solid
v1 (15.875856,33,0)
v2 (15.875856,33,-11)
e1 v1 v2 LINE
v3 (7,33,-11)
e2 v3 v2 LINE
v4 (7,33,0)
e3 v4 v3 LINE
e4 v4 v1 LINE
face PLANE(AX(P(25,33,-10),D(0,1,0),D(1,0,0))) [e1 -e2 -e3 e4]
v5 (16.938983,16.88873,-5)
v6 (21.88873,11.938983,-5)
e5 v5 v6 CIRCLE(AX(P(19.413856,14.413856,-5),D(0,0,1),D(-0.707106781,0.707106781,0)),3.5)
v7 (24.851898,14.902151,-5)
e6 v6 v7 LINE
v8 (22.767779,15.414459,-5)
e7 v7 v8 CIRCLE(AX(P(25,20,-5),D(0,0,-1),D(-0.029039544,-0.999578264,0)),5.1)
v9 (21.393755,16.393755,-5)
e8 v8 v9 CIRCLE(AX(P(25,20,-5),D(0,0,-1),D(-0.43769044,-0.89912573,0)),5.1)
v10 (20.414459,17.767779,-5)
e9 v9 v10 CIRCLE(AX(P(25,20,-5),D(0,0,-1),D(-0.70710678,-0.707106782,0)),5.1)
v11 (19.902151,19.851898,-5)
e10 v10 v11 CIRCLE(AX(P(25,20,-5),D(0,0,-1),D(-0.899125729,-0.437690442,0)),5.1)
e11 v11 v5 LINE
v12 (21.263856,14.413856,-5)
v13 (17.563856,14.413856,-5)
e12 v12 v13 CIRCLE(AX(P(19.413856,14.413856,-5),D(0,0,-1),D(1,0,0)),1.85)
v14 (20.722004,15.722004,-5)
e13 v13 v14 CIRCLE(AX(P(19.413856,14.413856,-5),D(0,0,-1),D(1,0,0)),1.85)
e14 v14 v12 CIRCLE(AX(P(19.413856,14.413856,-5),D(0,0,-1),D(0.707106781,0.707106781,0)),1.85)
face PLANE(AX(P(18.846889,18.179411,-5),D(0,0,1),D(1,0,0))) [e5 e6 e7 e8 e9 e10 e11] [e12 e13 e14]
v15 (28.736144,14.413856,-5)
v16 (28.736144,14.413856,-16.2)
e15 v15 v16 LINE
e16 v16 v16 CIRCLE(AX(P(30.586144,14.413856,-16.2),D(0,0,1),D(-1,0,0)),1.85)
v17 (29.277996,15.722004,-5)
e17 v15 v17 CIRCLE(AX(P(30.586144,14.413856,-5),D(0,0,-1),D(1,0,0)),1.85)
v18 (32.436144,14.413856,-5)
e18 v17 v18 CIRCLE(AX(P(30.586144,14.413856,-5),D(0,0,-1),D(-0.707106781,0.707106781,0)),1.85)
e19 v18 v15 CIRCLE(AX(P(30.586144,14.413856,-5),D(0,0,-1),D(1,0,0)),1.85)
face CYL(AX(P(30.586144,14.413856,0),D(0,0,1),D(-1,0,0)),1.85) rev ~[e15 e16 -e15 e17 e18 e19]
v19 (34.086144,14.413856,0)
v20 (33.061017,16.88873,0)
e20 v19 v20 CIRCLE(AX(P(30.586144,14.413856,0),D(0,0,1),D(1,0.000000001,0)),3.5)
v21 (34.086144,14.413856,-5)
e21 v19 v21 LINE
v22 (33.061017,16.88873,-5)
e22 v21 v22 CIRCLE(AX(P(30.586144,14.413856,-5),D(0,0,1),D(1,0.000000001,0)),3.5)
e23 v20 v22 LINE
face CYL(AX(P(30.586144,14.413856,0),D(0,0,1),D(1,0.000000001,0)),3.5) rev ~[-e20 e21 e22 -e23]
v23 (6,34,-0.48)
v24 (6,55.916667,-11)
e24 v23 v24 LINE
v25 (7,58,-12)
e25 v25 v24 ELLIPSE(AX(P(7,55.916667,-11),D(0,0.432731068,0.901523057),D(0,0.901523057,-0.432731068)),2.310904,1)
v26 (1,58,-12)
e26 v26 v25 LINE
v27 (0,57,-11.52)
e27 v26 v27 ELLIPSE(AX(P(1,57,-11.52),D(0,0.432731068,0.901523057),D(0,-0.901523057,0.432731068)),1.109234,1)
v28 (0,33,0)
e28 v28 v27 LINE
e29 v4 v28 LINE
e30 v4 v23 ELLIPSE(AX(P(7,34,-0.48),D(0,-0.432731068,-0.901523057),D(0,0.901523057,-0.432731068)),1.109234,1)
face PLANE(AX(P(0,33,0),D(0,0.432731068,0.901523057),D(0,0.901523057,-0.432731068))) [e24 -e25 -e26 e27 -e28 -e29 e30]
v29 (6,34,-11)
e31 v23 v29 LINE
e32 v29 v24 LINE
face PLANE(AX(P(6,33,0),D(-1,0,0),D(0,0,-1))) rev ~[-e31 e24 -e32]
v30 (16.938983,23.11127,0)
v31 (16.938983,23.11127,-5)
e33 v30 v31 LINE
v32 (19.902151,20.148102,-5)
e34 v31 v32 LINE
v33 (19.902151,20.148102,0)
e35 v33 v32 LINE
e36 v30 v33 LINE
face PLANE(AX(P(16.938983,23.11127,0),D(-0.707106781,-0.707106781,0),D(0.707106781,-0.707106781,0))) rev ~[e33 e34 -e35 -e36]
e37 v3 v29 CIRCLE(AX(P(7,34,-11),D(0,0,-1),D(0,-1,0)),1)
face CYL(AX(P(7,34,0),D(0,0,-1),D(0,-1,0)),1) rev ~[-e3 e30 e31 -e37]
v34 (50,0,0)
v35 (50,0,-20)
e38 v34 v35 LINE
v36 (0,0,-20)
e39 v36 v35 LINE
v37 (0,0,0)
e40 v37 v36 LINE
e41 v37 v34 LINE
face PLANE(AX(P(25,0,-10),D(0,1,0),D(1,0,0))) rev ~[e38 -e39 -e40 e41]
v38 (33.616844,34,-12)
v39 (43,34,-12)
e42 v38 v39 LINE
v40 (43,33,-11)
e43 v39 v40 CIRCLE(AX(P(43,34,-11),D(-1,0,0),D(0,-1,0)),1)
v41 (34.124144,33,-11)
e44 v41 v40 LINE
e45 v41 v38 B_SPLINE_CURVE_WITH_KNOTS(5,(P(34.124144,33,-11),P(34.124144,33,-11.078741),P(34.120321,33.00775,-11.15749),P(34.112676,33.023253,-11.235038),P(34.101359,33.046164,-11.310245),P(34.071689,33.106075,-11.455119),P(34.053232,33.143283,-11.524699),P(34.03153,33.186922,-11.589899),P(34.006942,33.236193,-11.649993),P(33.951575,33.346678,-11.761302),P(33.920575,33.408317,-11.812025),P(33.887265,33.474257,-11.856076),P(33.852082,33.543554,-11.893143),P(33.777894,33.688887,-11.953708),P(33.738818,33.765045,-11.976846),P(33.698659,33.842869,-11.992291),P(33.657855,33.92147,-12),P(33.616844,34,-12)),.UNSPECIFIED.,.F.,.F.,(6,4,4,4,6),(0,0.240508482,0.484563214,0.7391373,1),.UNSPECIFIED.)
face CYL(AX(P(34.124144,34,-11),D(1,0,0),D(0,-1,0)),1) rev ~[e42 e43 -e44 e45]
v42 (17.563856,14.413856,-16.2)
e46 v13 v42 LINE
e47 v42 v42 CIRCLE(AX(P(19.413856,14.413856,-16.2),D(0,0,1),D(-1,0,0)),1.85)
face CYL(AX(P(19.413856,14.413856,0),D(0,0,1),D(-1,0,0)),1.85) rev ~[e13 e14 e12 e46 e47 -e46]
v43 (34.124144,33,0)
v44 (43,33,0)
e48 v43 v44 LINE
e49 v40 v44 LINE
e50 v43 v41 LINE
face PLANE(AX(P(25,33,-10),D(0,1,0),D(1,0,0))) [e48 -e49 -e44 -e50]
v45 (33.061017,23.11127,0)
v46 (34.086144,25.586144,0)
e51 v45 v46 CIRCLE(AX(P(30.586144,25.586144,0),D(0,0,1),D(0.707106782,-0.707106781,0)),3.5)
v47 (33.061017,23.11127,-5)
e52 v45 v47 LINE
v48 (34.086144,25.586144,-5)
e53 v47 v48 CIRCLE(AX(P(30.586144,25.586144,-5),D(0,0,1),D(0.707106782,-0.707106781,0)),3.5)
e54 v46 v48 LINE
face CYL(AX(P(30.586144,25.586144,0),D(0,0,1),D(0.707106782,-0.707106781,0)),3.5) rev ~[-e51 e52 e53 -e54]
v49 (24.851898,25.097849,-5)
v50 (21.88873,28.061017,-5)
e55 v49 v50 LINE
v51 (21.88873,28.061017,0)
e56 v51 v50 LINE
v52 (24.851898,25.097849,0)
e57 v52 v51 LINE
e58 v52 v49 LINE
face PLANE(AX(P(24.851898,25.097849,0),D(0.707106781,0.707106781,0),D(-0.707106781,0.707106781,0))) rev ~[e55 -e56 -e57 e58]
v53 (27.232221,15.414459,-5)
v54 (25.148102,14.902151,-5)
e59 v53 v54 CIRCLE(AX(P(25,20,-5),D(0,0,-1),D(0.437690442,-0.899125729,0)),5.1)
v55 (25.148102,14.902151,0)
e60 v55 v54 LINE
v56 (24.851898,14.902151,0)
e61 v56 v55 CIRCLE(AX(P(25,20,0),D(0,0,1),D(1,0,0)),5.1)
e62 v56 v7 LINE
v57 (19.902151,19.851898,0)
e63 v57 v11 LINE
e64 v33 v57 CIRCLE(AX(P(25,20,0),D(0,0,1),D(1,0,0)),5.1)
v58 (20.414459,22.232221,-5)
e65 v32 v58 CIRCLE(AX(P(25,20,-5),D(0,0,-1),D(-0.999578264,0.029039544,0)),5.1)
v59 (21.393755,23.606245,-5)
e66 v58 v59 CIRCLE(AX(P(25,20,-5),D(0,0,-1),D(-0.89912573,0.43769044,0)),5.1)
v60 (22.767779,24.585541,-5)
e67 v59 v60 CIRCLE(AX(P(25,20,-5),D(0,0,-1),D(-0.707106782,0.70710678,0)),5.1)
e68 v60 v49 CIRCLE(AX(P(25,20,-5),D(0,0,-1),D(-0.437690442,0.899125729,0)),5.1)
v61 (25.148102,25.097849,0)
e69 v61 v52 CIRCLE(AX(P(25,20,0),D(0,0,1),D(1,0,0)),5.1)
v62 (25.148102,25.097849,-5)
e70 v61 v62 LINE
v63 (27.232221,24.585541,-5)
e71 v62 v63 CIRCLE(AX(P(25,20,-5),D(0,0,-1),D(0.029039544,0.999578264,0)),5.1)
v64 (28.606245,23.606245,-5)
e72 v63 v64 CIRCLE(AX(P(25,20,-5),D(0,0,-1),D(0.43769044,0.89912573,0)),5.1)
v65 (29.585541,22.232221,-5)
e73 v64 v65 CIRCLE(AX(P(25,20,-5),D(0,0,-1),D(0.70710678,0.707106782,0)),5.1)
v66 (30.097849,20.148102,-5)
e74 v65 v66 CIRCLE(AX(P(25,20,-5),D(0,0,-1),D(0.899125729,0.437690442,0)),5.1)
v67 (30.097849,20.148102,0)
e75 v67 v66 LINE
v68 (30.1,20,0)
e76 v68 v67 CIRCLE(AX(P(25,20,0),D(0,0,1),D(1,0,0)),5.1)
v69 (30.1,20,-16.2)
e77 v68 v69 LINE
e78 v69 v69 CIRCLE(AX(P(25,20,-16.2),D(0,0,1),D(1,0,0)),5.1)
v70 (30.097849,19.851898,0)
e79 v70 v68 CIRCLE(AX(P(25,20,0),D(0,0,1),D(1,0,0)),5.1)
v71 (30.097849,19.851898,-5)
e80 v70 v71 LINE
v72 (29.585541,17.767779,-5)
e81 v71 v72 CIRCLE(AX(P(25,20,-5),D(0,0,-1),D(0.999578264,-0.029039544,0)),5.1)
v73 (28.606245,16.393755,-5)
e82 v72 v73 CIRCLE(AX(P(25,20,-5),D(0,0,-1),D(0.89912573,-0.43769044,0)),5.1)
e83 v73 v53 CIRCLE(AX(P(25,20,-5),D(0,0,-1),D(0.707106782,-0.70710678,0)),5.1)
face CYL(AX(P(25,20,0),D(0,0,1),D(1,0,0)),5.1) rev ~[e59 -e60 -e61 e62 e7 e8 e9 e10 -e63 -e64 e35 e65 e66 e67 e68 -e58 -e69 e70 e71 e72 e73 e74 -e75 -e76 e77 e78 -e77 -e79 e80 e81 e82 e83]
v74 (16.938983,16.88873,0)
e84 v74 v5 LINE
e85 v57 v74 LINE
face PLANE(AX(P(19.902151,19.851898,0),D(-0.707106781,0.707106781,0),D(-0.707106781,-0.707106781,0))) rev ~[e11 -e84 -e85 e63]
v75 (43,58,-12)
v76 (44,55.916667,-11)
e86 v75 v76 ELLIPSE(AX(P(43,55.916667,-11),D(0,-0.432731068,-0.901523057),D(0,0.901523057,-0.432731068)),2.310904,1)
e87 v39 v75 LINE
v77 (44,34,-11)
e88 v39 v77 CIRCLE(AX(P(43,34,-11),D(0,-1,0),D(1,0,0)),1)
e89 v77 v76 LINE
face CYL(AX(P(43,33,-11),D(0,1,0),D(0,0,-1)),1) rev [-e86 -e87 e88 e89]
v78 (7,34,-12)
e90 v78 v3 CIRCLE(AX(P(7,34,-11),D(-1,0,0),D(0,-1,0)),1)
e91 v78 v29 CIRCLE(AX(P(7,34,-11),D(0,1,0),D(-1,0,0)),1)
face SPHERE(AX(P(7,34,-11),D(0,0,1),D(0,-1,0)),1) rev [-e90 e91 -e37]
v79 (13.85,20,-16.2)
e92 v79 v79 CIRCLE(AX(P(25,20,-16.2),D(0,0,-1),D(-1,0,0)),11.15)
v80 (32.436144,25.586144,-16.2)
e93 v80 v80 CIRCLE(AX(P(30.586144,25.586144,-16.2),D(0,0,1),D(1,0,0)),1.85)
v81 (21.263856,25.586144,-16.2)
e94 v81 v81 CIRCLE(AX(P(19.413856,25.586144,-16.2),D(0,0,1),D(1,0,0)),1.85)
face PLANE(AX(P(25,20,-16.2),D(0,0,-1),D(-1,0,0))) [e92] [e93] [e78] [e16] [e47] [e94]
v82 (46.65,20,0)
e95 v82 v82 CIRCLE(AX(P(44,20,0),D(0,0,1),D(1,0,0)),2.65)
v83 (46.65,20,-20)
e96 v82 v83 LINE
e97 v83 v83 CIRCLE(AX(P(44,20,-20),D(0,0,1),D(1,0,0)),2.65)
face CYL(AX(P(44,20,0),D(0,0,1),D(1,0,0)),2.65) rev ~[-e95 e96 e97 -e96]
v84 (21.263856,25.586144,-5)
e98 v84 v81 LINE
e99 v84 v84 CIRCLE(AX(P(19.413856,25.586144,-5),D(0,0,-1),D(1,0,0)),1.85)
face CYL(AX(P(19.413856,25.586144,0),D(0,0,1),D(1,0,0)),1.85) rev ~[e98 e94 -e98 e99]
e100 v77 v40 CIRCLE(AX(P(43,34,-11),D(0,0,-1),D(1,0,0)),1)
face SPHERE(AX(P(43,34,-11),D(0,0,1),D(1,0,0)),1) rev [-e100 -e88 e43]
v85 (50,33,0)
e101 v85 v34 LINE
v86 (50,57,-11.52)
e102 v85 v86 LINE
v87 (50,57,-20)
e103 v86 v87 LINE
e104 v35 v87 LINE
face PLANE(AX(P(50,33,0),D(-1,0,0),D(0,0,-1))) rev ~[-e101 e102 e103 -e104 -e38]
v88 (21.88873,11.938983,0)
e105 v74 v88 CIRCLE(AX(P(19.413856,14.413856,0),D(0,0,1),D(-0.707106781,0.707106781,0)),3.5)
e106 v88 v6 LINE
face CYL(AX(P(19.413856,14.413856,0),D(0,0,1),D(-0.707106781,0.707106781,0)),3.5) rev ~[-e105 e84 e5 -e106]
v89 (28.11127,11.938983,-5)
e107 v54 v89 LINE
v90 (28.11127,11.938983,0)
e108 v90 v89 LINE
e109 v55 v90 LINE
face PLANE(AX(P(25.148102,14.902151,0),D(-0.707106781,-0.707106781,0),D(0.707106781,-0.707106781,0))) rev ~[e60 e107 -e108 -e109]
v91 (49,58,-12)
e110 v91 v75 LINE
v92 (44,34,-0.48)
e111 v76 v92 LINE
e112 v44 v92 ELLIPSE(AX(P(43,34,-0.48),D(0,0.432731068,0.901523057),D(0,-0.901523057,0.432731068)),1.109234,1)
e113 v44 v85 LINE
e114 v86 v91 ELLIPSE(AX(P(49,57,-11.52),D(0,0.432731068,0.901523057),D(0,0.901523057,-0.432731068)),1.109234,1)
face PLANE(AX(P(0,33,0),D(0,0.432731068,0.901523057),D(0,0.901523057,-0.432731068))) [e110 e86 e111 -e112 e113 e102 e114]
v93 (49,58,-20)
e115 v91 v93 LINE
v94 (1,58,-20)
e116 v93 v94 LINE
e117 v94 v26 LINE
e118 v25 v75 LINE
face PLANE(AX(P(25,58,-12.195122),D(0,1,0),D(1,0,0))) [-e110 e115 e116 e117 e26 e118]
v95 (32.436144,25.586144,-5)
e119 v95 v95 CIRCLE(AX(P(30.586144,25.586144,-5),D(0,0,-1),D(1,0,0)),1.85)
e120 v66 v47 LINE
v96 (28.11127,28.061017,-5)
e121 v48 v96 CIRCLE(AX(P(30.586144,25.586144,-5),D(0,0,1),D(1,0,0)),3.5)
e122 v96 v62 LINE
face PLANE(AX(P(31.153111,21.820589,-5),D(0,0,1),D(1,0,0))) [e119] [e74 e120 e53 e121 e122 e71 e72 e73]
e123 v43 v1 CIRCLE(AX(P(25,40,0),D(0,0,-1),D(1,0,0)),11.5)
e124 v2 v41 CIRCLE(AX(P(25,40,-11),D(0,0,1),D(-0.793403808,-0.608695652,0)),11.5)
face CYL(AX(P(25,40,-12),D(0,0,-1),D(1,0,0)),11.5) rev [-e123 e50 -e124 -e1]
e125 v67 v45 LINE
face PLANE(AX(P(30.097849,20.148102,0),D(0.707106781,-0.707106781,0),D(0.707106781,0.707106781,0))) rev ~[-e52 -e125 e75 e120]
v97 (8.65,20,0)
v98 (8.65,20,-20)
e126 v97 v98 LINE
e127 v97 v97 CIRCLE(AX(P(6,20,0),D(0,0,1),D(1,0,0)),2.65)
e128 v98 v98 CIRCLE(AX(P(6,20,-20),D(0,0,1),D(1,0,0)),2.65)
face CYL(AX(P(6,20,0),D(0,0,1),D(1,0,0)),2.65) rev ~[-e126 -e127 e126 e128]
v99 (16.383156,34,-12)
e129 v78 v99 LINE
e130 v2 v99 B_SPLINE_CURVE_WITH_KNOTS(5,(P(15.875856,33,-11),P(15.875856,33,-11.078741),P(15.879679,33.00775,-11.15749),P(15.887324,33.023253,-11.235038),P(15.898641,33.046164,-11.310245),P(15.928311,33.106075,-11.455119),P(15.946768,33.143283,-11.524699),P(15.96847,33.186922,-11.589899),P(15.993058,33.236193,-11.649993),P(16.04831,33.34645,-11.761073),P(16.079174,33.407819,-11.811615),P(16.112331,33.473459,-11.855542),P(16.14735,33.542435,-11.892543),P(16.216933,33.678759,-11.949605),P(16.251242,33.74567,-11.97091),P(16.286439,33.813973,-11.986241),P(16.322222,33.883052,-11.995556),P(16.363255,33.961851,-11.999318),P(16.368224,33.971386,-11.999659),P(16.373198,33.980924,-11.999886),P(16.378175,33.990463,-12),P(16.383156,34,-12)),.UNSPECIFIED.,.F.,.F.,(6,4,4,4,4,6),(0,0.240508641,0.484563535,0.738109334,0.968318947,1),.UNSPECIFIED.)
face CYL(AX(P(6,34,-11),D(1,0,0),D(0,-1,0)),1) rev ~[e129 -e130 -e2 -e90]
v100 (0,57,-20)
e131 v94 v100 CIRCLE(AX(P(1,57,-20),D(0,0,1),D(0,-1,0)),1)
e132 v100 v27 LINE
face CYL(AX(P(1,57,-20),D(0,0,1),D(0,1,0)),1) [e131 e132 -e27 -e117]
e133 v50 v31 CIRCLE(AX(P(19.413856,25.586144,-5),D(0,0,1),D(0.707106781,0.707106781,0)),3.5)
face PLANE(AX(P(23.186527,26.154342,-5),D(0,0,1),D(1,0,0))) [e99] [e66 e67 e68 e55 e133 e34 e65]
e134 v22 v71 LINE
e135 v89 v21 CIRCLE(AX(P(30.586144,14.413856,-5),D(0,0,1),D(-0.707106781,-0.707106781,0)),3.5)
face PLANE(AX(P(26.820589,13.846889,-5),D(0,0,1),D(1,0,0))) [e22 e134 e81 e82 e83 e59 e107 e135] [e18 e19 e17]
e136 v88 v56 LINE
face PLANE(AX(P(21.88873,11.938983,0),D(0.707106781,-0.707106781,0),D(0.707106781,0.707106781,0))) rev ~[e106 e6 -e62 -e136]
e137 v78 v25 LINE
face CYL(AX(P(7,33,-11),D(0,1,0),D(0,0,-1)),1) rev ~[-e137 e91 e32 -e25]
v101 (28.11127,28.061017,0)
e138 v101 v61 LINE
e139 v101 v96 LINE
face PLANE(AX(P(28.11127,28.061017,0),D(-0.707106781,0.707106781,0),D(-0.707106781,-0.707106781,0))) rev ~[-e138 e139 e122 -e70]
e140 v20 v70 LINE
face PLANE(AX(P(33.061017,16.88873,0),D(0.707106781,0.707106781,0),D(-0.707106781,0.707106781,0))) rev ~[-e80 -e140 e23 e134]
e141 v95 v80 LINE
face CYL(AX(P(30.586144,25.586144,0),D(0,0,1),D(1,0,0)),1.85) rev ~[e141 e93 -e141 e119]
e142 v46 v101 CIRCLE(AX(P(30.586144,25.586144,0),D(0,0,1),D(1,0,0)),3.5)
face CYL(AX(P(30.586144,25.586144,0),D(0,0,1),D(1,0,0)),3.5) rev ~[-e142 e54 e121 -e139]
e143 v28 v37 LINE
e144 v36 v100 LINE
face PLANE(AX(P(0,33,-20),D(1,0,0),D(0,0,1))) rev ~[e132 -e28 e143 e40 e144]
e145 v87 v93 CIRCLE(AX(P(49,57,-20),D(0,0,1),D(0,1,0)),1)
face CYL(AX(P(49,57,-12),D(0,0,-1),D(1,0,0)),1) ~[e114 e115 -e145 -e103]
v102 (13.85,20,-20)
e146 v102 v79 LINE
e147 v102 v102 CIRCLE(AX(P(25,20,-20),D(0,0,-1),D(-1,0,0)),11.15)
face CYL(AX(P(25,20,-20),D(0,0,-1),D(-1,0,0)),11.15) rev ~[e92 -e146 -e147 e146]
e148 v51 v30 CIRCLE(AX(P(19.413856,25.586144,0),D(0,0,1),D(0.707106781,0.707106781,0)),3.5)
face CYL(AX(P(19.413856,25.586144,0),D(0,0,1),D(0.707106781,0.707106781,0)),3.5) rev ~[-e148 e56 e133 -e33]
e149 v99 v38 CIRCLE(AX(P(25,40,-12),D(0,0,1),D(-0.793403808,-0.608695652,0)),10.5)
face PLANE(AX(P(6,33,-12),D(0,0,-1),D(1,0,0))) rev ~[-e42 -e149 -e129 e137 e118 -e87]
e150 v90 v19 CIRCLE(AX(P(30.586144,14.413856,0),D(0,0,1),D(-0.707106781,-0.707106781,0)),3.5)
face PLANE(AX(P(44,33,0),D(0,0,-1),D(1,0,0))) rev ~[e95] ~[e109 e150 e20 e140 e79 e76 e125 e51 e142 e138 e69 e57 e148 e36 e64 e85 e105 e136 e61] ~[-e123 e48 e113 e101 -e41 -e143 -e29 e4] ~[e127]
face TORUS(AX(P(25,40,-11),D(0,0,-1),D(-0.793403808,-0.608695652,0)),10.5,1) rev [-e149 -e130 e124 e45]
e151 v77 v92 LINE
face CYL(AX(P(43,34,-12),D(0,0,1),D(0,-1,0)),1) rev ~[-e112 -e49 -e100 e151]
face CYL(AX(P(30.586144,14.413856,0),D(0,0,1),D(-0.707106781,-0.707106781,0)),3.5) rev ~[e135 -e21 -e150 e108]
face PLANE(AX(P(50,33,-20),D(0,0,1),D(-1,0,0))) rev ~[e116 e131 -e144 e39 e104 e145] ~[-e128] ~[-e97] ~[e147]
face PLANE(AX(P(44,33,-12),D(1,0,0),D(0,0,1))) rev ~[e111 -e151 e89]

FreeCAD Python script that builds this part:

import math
import FreeCAD as App
import Part
import Sketcher
Q = App.Units.Quantity


def edges_at(feature, points):
    """Names of the edges that pass closest to the given points."""
    edges = feature.Shape.Edges
    near = lambda p: min(range(len(edges)), key=lambda i: edges[i].distToShape(Part.Vertex(*p))[0])
    return sorted({f"Edge{near(p) + 1}" for p in points})

doc = App.newDocument("Part")
body = doc.addObject("PartDesign::Body", "Body")

# Sketch on XZ plane
sketch1 = body.newObject("Sketcher::SketchObject", "Sketch")
sketch1.AttachmentSupport = (doc.getObject("XZ_Plane"), [""])
sketch1.MapMode = "FlatFace"
sketch1.addGeometry(Part.LineSegment(App.Vector(0, -20, 0), App.Vector(0, 0, 0)), False)
sketch1.addGeometry(Part.LineSegment(App.Vector(0, 0, 0), App.Vector(50, 0, 0)), False)
sketch1.addGeometry(Part.LineSegment(App.Vector(50, 0, 0), App.Vector(50, -20, 0)), False)
sketch1.addGeometry(Part.LineSegment(App.Vector(50, -20, 0), App.Vector(0, -20, 0)), False)
sketch1.addConstraint(Sketcher.Constraint("Coincident", 0, 2, 1, 1))
sketch1.addConstraint(Sketcher.Constraint("Coincident", 1, 2, 2, 1))
sketch1.addConstraint(Sketcher.Constraint("Coincident", 2, 2, 3, 1))
sketch1.addConstraint(Sketcher.Constraint("Coincident", 3, 2, 0, 1))
sketch1.addConstraint(Sketcher.Constraint("Vertical", 0))
sketch1.addConstraint(Sketcher.Constraint("Horizontal", 1))
sketch1.addConstraint(Sketcher.Constraint("Vertical", 2))
sketch1.addConstraint(Sketcher.Constraint("Horizontal", 3))
sketch1.addConstraint(Sketcher.Constraint("Coincident", 0, 2, -1, 1))
sketch1.addConstraint(Sketcher.Constraint("DistanceX", 1, 1, 1, 2, Q("50 mm")))
sketch1.addConstraint(Sketcher.Constraint("DistanceY", 0, 1, 0, 2, Q("20 mm")))
pad1 = body.newObject("PartDesign::Pad", "Pad")
pad1.Profile = sketch1
pad1.Length = 33
pad1.Reversed = True

# Sketch on XY plane
sketch2 = body.newObject("Sketcher::SketchObject", "Sketch001")
sketch2.AttachmentSupport = (doc.getObject("XY_Plane"), [""])
sketch2.MapMode = "FlatFace"
sketch2.addGeometry(Part.Circle(App.Vector(6, 20, 0), App.Vector(0, 0, 1), 2.6), False)
sketch2.addGeometry(Part.Circle(App.Vector(44, 20, 0), App.Vector(0, 0, 1), 2.6), False)
sketch2.addConstraint(Sketcher.Constraint("Equal", 0, 1))
sketch2.addConstraint(Sketcher.Constraint("Horizontal", 0, 3, 1, 3))
sketch2.addConstraint(Sketcher.Constraint("Diameter", 0, Q("5.3 mm")))
sketch2.addConstraint(Sketcher.Constraint("DistanceX", -1, 1, 0, 3, Q("6 mm")))
sketch2.addConstraint(Sketcher.Constraint("DistanceY", -1, 1, 0, 3, Q("20 mm")))
sketch2.addConstraint(Sketcher.Constraint("DistanceX", -1, 1, 1, 3, Q("44 mm")))
pocket1 = body.newObject("PartDesign::Pocket", "Pocket")
pocket1.Profile = sketch2
pocket1.Type = "ThroughAll"

# Sketch on XZ plane
sketch3 = body.newObject("Sketcher::SketchObject", "Sketch002")
sketch3.AttachmentSupport = (doc.getObject("XZ_Plane"), [""])
sketch3.MapMode = "FlatFace"
sketch3.AttachmentOffset = App.Placement(App.Vector(0, 0, -33), App.Rotation())
sketch3.addGeometry(Part.LineSegment(App.Vector(50, 0, 0), App.Vector(50, -20, 0)), False)
sketch3.addGeometry(Part.LineSegment(App.Vector(50, -20, 0), App.Vector(0, -20, 0)), False)
sketch3.addGeometry(Part.LineSegment(App.Vector(0, -20, 0), App.Vector(0, 0, 0)), False)
sketch3.addGeometry(Part.LineSegment(App.Vector(0, 0, 0), App.Vector(6, 0, 0)), False)
sketch3.addGeometry(Part.LineSegment(App.Vector(6, 0, 0), App.Vector(6, -12, 0)), False)
sketch3.addGeometry(Part.LineSegment(App.Vector(6, -12, 0), App.Vector(44, -12, 0)), False)
sketch3.addGeometry(Part.LineSegment(App.Vector(44, -12, 0), App.Vector(44, 0, 0)), False)
sketch3.addGeometry(Part.LineSegment(App.Vector(44, 0, 0), App.Vector(50, 0, 0)), False)
sketch3.addConstraint(Sketcher.Constraint("Coincident", 0, 2, 1, 1))
sketch3.addConstraint(Sketcher.Constraint("Coincident", 1, 2, 2, 1))
sketch3.addConstraint(Sketcher.Constraint("Coincident", 2, 2, 3, 1))
sketch3.addConstraint(Sketcher.Constraint("Coincident", 3, 2, 4, 1))
sketch3.addConstraint(Sketcher.Constraint("Coincident", 4, 2, 5, 1))
sketch3.addConstraint(Sketcher.Constraint("Coincident", 5, 2, 6, 1))
sketch3.addConstraint(Sketcher.Constraint("Coincident", 6, 2, 7, 1))
sketch3.addConstraint(Sketcher.Constraint("Coincident", 7, 2, 0, 1))
sketch3.addConstraint(Sketcher.Constraint("Vertical", 0))
sketch3.addConstraint(Sketcher.Constraint("Horizontal", 1))
sketch3.addConstraint(Sketcher.Constraint("Vertical", 2))
sketch3.addConstraint(Sketcher.Constraint("Horizontal", 3))
sketch3.addConstraint(Sketcher.Constraint("Vertical", 4))
sketch3.addConstraint(Sketcher.Constraint("Horizontal", 5))
sketch3.addConstraint(Sketcher.Constraint("Vertical", 6))
sketch3.addConstraint(Sketcher.Constraint("Horizontal", 7))
sketch3.addConstraint(Sketcher.Constraint("Coincident", 2, 2, -1, 1))
sketch3.addConstraint(Sketcher.Constraint("PointOnObject", 6, 2, -1))
sketch3.addConstraint(Sketcher.Constraint("Equal", 3, 7))
sketch3.addConstraint(Sketcher.Constraint("DistanceX", 1, 2, 1, 1, Q("50 mm")))
sketch3.addConstraint(Sketcher.Constraint("DistanceX", 3, 1, 3, 2, Q("6 mm")))
sketch3.addConstraint(Sketcher.Constraint("DistanceY", 0, 2, 0, 1, Q("20 mm")))
sketch3.addConstraint(Sketcher.Constraint("DistanceY", 4, 2, 4, 1, Q("12 mm")))
pad2 = body.newObject("PartDesign::Pad", "Pad001")
pad2.Profile = sketch3
pad2.Length = 25
pad2.Reversed = True

# Sketch on YZ plane
sketch4 = body.newObject("Sketcher::SketchObject", "Sketch003")
sketch4.AttachmentSupport = (doc.getObject("YZ_Plane"), [""])
sketch4.MapMode = "FlatFace"
sketch4.addGeometry(Part.LineSegment(App.Vector(33, 0, 0), App.Vector(58, 0, 0)), False)
sketch4.addGeometry(Part.LineSegment(App.Vector(58, 0, 0), App.Vector(58, -12, 0)), False)
sketch4.addGeometry(Part.LineSegment(App.Vector(58, -12, 0), App.Vector(33, 0, 0)), False)
sketch4.addConstraint(Sketcher.Constraint("Coincident", 0, 2, 1, 1))
sketch4.addConstraint(Sketcher.Constraint("Coincident", 1, 2, 2, 1))
sketch4.addConstraint(Sketcher.Constraint("Coincident", 2, 2, 0, 1))
sketch4.addConstraint(Sketcher.Constraint("Horizontal", 0))
sketch4.addConstraint(Sketcher.Constraint("Vertical", 1))
sketch4.addConstraint(Sketcher.Constraint("PointOnObject", 0, 2, -1))
sketch4.addConstraint(Sketcher.Constraint("DistanceX", 0, 1, 0, 2, Q("25 mm")))
sketch4.addConstraint(Sketcher.Constraint("DistanceY", 1, 2, 1, 1, Q("12 mm")))
sketch4.addConstraint(Sketcher.Constraint("DistanceX", -1, 1, 0, 2, Q("58 mm")))
pocket2 = body.newObject("PartDesign::Pocket", "Pocket001")
pocket2.Profile = sketch4
pocket2.Type = "ThroughAll"
pocket2.Reversed = True

# Sketch on XY plane
sketch5 = body.newObject("Sketcher::SketchObject", "Sketch004")
sketch5.AttachmentSupport = (doc.getObject("XY_Plane"), [""])
sketch5.MapMode = "FlatFace"
sketch5.AttachmentOffset = App.Placement(App.Vector(0, 0, -12), App.Rotation())
sketch5.addGeometry(Part.Circle(App.Vector(25, 40, 0), App.Vector(0, 0, 1), 12), False)
sketch5.addConstraint(Sketcher.Constraint("Diameter", 0, Q("23 mm")))
sketch5.addConstraint(Sketcher.Constraint("DistanceX", -1, 1, 0, 3, Q("25 mm")))
sketch5.addConstraint(Sketcher.Constraint("DistanceY", -1, 1, 0, 3, Q("40 mm")))
pocket3 = body.newObject("PartDesign::Pocket", "Pocket002")
pocket3.Profile = sketch5
pocket3.Type = "ThroughAll"
pocket3.Reversed = True
doc.recompute()

fillet = body.newObject("PartDesign::Fillet", "Fillet")
fillet.Base = (pocket3, edges_at(pocket3, [
    (6, 33, -6),
    (10.938, 33, -12),
    (6, 45.5, -12),
    (44, 33, -6),
    (44, 45.5, -12),
    (0, 58, -16),
    (50, 58, -16),
    (39.062, 33, -12),
    (25, 28.5, -12),
]))
fillet.Radius = 1

# Sketch on XY plane
sketch6 = body.newObject("Sketcher::SketchObject", "Sketch005")
sketch6.AttachmentSupport = (doc.getObject("XY_Plane"), [""])
sketch6.MapMode = "FlatFace"
sketch6.addGeometry(Part.Circle(App.Vector(25, 20, 0), App.Vector(0, 0, 1), 5.1), False)
sketch6.addGeometry(Part.Circle(App.Vector(19.4, 25.6, 0), App.Vector(0, 0, 1), 1.9), False)
sketch6.addGeometry(Part.Circle(App.Vector(30.6, 25.6, 0), App.Vector(0, 0, 1), 1.9), False)
sketch6.addGeometry(Part.Circle(App.Vector(30.6, 14.4, 0), App.Vector(0, 0, 1), 1.9), False)
sketch6.addGeometry(Part.Circle(App.Vector(19.4, 14.4, 0), App.Vector(0, 0, 1), 1.9), False)
sketch6.addConstraint(Sketcher.Constraint("Equal", 1, 2))
sketch6.addConstraint(Sketcher.Constraint("Equal", 2, 3))
sketch6.addConstraint(Sketcher.Constraint("Equal", 3, 4))
sketch6.addConstraint(Sketcher.Constraint("Horizontal", 1, 3, 2, 3))
sketch6.addConstraint(Sketcher.Constraint("Horizontal", 3, 3, 4, 3))
sketch6.addConstraint(Sketcher.Constraint("Vertical", 2, 3, 3, 3))
sketch6.addConstraint(Sketcher.Constraint("Vertical", 1, 3, 4, 3))
sketch6.addConstraint(Sketcher.Constraint("Diameter", 0, Q("10.2 mm")))
sketch6.addConstraint(Sketcher.Constraint("Diameter", 1, Q("3.7 mm")))
sketch6.addConstraint(Sketcher.Constraint("DistanceX", -1, 1, 0, 3, Q("25 mm")))
sketch6.addConstraint(Sketcher.Constraint("DistanceY", -1, 1, 0, 3, Q("20 mm")))
sketch6.addConstraint(Sketcher.Constraint("DistanceX", -1, 1, 1, 3, Q("19.413856 mm")))
sketch6.addConstraint(Sketcher.Constraint("DistanceY", -1, 1, 1, 3, Q("25.586144 mm")))
sketch6.addConstraint(Sketcher.Constraint("DistanceX", -1, 1, 2, 3, Q("30.586144 mm")))
sketch6.addConstraint(Sketcher.Constraint("DistanceY", -1, 1, 3, 3, Q("14.413856 mm")))
pocket4 = body.newObject("PartDesign::Pocket", "Pocket003")
pocket4.Profile = sketch6
pocket4.Type = "ThroughAll"

# Sketch on XY plane
sketch7 = body.newObject("Sketcher::SketchObject", "Sketch006")
sketch7.AttachmentSupport = (doc.getObject("XY_Plane"), [""])
sketch7.MapMode = "FlatFace"
sketch7.AttachmentOffset = App.Placement(App.Vector(0, 0, -20), App.Rotation())
sketch7.addGeometry(Part.Circle(App.Vector(25, 20, 0), App.Vector(0, 0, 1), 11), False)
sketch7.addConstraint(Sketcher.Constraint("Diameter", 0, Q("22.3 mm")))
sketch7.addConstraint(Sketcher.Constraint("DistanceX", -1, 1, 0, 3, Q("25 mm")))
sketch7.addConstraint(Sketcher.Constraint("DistanceY", -1, 1, 0, 3, Q("20 mm")))
pocket5 = body.newObject("PartDesign::Pocket", "Pocket004")
pocket5.Profile = sketch7
pocket5.Length = 3.8
pocket5.Reversed = True

# Sketch on XY plane
sketch8 = body.newObject("Sketcher::SketchObject", "Sketch007")
sketch8.AttachmentSupport = (doc.getObject("XY_Plane"), [""])
sketch8.MapMode = "FlatFace"
sketch8.addGeometry(Part.ArcOfCircle(Part.Circle(App.Vector(19.4, 25.6, 0), App.Vector(0, 0, 1), 3.5), math.radians(45), math.radians(225)), False)
sketch8.addGeometry(Part.LineSegment(App.Vector(16.9, 23.1, 0), App.Vector(19.9, 20.1, 0)), False)
sketch8.addGeometry(Part.ArcOfCircle(Part.Circle(App.Vector(25, 20, 0), App.Vector(0, 0, 1), 5.1), math.radians(154), math.radians(178)), False)
sketch8.addGeometry(Part.ArcOfCircle(Part.Circle(App.Vector(25, 20, 0), App.Vector(0, 0, 1), 5.1), math.radians(135), math.radians(154.04)), False)
sketch8.addGeometry(Part.ArcOfCircle(Part.Circle(App.Vector(25, 20, 0), App.Vector(0, 0, 1), 5.1), math.radians(115.96), math.radians(135)), False)
sketch8.addGeometry(Part.ArcOfCircle(Part.Circle(App.Vector(25, 20, 0), App.Vector(0, 0, 1), 5.1), math.radians(92), math.radians(116)), False)
sketch8.addGeometry(Part.LineSegment(App.Vector(24.9, 25.1, 0), App.Vector(21.9, 28.1, 0)), False)
sketch8.addGeometry(Part.ArcOfCircle(Part.Circle(App.Vector(25, 20, 0), App.Vector(0, 0, 1), 5.1), math.radians(64), math.radians(88)), False)
sketch8.addGeometry(Part.ArcOfCircle(Part.Circle(App.Vector(25, 20, 0), App.Vector(0, 0, 1), 5.1), math.radians(45), math.radians(64.04)), False)
sketch8.addGeometry(Part.ArcOfCircle(Part.Circle(App.Vector(25, 20, 0), App.Vector(0, 0, 1), 5.1), math.radians(25.96), math.radians(45)), False)
sketch8.addGeometry(Part.ArcOfCircle(Part.Circle(App.Vector(25, 20, 0), App.Vector(0, 0, 1), 5.1), math.radians(2), math.radians(26)), False)
sketch8.addGeometry(Part.LineSegment(App.Vector(30.1, 20.1, 0), App.Vector(33.1, 23.1, 0)), False)
sketch8.addGeometry(Part.ArcOfCircle(Part.Circle(App.Vector(30.6, 25.6, 0), App.Vector(0, 0, 1), 3.5), math.radians(-45), math.radians(0)), False)
sketch8.addGeometry(Part.ArcOfCircle(Part.Circle(App.Vector(30.6, 25.6, 0), App.Vector(0, 0, 1), 3.5), math.radians(0), math.radians(135)), False)
sketch8.addGeometry(Part.LineSegment(App.Vector(28.1, 28.1, 0), App.Vector(25.1, 25.1, 0)), False)
sketch8.addGeometry(Part.ArcOfCircle(Part.Circle(App.Vector(25, 20, 0), App.Vector(0, 0, 1), 5.1), math.radians(-64.04), math.radians(-45)), False)
sketch8.addGeometry(Part.ArcOfCircle(Part.Circle(App.Vector(25, 20, 0), App.Vector(0, 0, 1), 5.1), math.radians(-88), math.radians(-64)), False)
sketch8.addGeometry(Part.LineSegment(App.Vector(25.1, 14.9, 0), App.Vector(28.1, 11.9, 0)), False)
sketch8.addGeometry(Part.ArcOfCircle(Part.Circle(App.Vector(30.6, 14.4, 0), App.Vector(0, 0, 1), 3.5), math.radians(-135), math.radians(0)), False)
sketch8.addGeometry(Part.ArcOfCircle(Part.Circle(App.Vector(30.6, 14.4, 0), App.Vector(0, 0, 1), 3.5), math.radians(0), math.radians(45)), False)
sketch8.addGeometry(Part.LineSegment(App.Vector(33.1, 16.9, 0), App.Vector(30.1, 19.9, 0)), False)
sketch8.addGeometry(Part.ArcOfCircle(Part.Circle(App.Vector(25, 20, 0), App.Vector(0, 0, 1), 5.1), math.radians(-26), math.radians(-2)), False)
sketch8.addGeometry(Part.ArcOfCircle(Part.Circle(App.Vector(25, 20, 0), App.Vector(0, 0, 1), 5.1), math.radians(-45), math.radians(-25.96)), False)
sketch8.addGeometry(Part.ArcOfCircle(Part.Circle(App.Vector(30.6, 14.4, 0), App.Vector(0, 0, 1), 1.9), math.radians(0), math.radians(135)), False)
sketch8.addGeometry(Part.ArcOfCircle(Part.Circle(App.Vector(30.6, 14.4, 0), App.Vector(0, 0, 1), 1.9), math.radians(135), math.radians(360)), False)
sketch8.addGeometry(Part.ArcOfCircle(Part.Circle(App.Vector(25, 20, 0), App.Vector(0, 0, 1), 5.1), math.radians(-135), math.radians(-115.96)), False)
sketch8.addGeometry(Part.ArcOfCircle(Part.Circle(App.Vector(25, 20, 0), App.Vector(0, 0, 1), 5.1), math.radians(-154.04), math.radians(-135)), False)
sketch8.addGeometry(Part.ArcOfCircle(Part.Circle(App.Vector(25, 20, 0), App.Vector(0, 0, 1), 5.1), math.radians(-178), math.radians(-154)), False)
sketch8.addGeometry(Part.LineSegment(App.Vector(19.9, 19.9, 0), App.Vector(16.9, 16.9, 0)), False)
sketch8.addGeometry(Part.ArcOfCircle(Part.Circle(App.Vector(19.4, 14.4, 0), App.Vector(0, 0, 1), 3.5), math.radians(135), math.radians(315)), False)
sketch8.addGeometry(Part.LineSegment(App.Vector(21.9, 11.9, 0), App.Vector(24.9, 14.9, 0)), False)
sketch8.addGeometry(Part.ArcOfCircle(Part.Circle(App.Vector(25, 20, 0), App.Vector(0, 0, 1), 5.1), math.radians(-116), math.radians(-92)), False)
sketch8.addGeometry(Part.ArcOfCircle(Part.Circle(App.Vector(19.4, 14.4, 0), App.Vector(0, 0, 1), 1.8), math.radians(0), math.radians(45)), False)
sketch8.addGeometry(Part.ArcOfCircle(Part.Circle(App.Vector(19.4, 14.4, 0), App.Vector(0, 0, 1), 1.9), math.radians(45), math.radians(360)), False)
sketch8.addConstraint(Sketcher.Constraint("Tangent", 0, 2, 1, 1))
sketch8.addConstraint(Sketcher.Constraint("Coincident", 1, 2, 2, 2))
sketch8.addConstraint(Sketcher.Constraint("Tangent", 2, 1, 3, 2))
sketch8.addConstraint(Sketcher.Constraint("Tangent", 3, 1, 4, 2))
sketch8.addConstraint(Sketcher.Constraint("Tangent", 4, 1, 5, 2))
sketch8.addConstraint(Sketcher.Constraint("Coincident", 5, 1, 6, 1))
sketch8.addConstraint(Sketcher.Constraint("Tangent", 6, 2, 0, 1))
sketch8.addConstraint(Sketcher.Constraint("Tangent", 7, 1, 8, 2))
sketch8.addConstraint(Sketcher.Constraint("Tangent", 8, 1, 9, 2))
sketch8.addConstraint(Sketcher.Constraint("Tangent", 9, 1, 10, 2))
sketch8.addConstraint(Sketcher.Constraint("Coincident", 10, 1, 11, 1))
sketch8.addConstraint(Sketcher.Constraint("Tangent", 11, 2, 12, 1))
sketch8.addConstraint(Sketcher.Constraint("Tangent", 12, 2, 13, 1))
sketch8.addConstraint(Sketcher.Constraint("Tangent", 13, 2, 14, 1))
sketch8.addConstraint(Sketcher.Constraint("Coincident", 14, 2, 7, 2))
sketch8.addConstraint(Sketcher.Constraint("Tangent", 15, 1, 16, 2))
sketch8.addConstraint(Sketcher.Constraint("Coincident", 16, 1, 17, 1))
sketch8.addConstraint(Sketcher.Constraint("Tangent", 17, 2, 18, 1))
sketch8.addConstraint(Sketcher.Constraint("Tangent", 18, 2, 19, 1))
sketch8.addConstraint(Sketcher.Constraint("Tangent", 19, 2, 20, 1))
sketch8.addConstraint(Sketcher.Constraint("Coincident", 20, 2, 21, 2))
sketch8.addConstraint(Sketcher.Constraint("Tangent", 21, 1, 22, 2))
sketch8.addConstraint(Sketcher.Constraint("Tangent", 22, 1, 15, 2))
sketch8.addConstraint(Sketcher.Constraint("Tangent", 23, 1, 24, 2))
sketch8.addConstraint(Sketcher.Constraint("Coincident", 24, 1, 23, 2))
sketch8.addConstraint(Sketcher.Constraint("Tangent", 25, 1, 26, 2))
sketch8.addConstraint(Sketcher.Constraint("Tangent", 26, 1, 27, 2))
sketch8.addConstraint(Sketcher.Constraint("Coincident", 27, 1, 28, 1))
sketch8.addConstraint(Sketcher.Constraint("Tangent", 28, 2, 29, 1))
sketch8.addConstraint(Sketcher.Constraint("Tangent", 29, 2, 30, 1))
sketch8.addConstraint(Sketcher.Constraint("Coincident", 30, 2, 31, 2))
sketch8.addConstraint(Sketcher.Constraint("Tangent", 31, 1, 25, 2))
sketch8.addConstraint(Sketcher.Constraint("Tangent", 32, 1, 33, 2))
sketch8.addConstraint(Sketcher.Constraint("Coincident", 33, 1, 32, 2))
sketch8.addConstraint(Sketcher.Constraint("Coincident", 4, 3, 2, 3))
sketch8.addConstraint(Sketcher.Constraint("Coincident", 7, 3, 2, 3))
sketch8.addConstraint(Sketcher.Constraint("Coincident", 9, 3, 2, 3))
sketch8.addConstraint(Sketcher.Constraint("Coincident", 15, 3, 2, 3))
sketch8.addConstraint(Sketcher.Constraint("Coincident", 21, 3, 2, 3))
sketch8.addConstraint(Sketcher.Constraint("Coincident", 23, 3, 18, 3))
sketch8.addConstraint(Sketcher.Constraint("Coincident", 25, 3, 2, 3))
sketch8.addConstraint(Sketcher.Constraint("Coincident", 27, 3, 2, 3))
sketch8.addConstraint(Sketcher.Constraint("Coincident", 32, 3, 29, 3))
sketch8.addConstraint(Sketcher.Constraint("Equal", 4, 5))
sketch8.addConstraint(Sketcher.Constraint("Equal", 5, 7))
sketch8.addConstraint(Sketcher.Constraint("Equal", 9, 10))
sketch8.addConstraint(Sketcher.Constraint("Equal", 0, 12))
sketch8.addConstraint(Sketcher.Constraint("Equal", 12, 13))
sketch8.addConstraint(Sketcher.Constraint("Equal", 10, 15))
sketch8.addConstraint(Sketcher.Constraint("Equal", 15, 16))
sketch8.addConstraint(Sketcher.Constraint("Equal", 13, 18))
sketch8.addConstraint(Sketcher.Constraint("Equal", 18, 19))
sketch8.addConstraint(Sketcher.Constraint("Equal", 22, 25))
sketch8.addConstraint(Sketcher.Constraint("Equal", 19, 29))
sketch8.addConstraint(Sketcher.Constraint("Equal", 27, 31))
sketch8.addConstraint(Sketcher.Constraint("Equal", 24, 32))
sketch8.addConstraint(Sketcher.Constraint("Parallel", 1, 6))
sketch8.addConstraint(Sketcher.Constraint("Perpendicular", 6, 11))
sketch8.addConstraint(Sketcher.Constraint("Parallel", 11, 14))
sketch8.addConstraint(Sketcher.Constraint("Perpendicular", 14, 17))
sketch8.addConstraint(Sketcher.Constraint("Parallel", 17, 20))
sketch8.addConstraint(Sketcher.Constraint("Perpendicular", 20, 28))
sketch8.addConstraint(Sketcher.Constraint("Parallel", 28, 30))
sketch8.addConstraint(Sketcher.Constraint("Horizontal", 0, 3, 12, 3))
sketch8.addConstraint(Sketcher.Constraint("Horizontal", 24, 3, 29, 3))
sketch8.addConstraint(Sketcher.Constraint("Horizontal", 4, 1, 7, 1))
sketch8.addConstraint(Sketcher.Constraint("Horizontal", 3, 1, 8, 1))
sketch8.addConstraint(Sketcher.Constraint("Horizontal", 2, 1, 9, 1))
sketch8.addConstraint(Sketcher.Constraint("Horizontal", 1, 2, 10, 1))
sketch8.addConstraint(Sketcher.Constraint("Horizontal", 0, 2, 11, 2))
sketch8.addConstraint(Sketcher.Constraint("Horizontal", 13, 3, 12, 2))
sketch8.addConstraint(Sketcher.Constraint("Horizontal", 33, 3, 18, 2))
sketch8.addConstraint(Sketcher.Constraint("Horizontal", 18, 2, 23, 1))
sketch8.addConstraint(Sketcher.Constraint("Horizontal", 22, 1, 25, 1))
sketch8.addConstraint(Sketcher.Constraint("Horizontal", 21, 1, 26, 1))
sketch8.addConstraint(Sketcher.Constraint("Horizontal", 20, 2, 27, 1))
sketch8.addConstraint(Sketcher.Constraint("Horizontal", 15, 1, 31, 1))
sketch8.addConstraint(Sketcher.Constraint("Horizontal", 23, 1, 32, 1))
sketch8.addConstraint(Sketcher.Constraint("Horizontal", 24, 1, 33, 1))
sketch8.addConstraint(Sketcher.Constraint("Vertical", 13, 3, 18, 3))
sketch8.addConstraint(Sketcher.Constraint("Vertical", 7, 1, 15, 1))
sketch8.addConstraint(Sketcher.Constraint("Vertical", 14, 2, 16, 1))
sketch8.addConstraint(Sketcher.Constraint("Vertical", 9, 1, 21, 1))
sketch8.addConstraint(Sketcher.Constraint("Vertical", 8, 1, 22, 1))
sketch8.addConstraint(Sketcher.Constraint("Equal", 1, 6))
sketch8.addConstraint(Sketcher.Constraint("Radius", 0, Q("3.5 mm")))
sketch8.addConstraint(Sketcher.Constraint("Radius", 2, Q("5.1 mm")))
sketch8.addConstraint(Sketcher.Constraint("Radius", 23, Q("1.85 mm")))
sketch8.addConstraint(Sketcher.Constraint("DistanceX", -1, 1, 2, 3, Q("25 mm")))
sketch8.addConstraint(Sketcher.Constraint("DistanceY", -1, 1, 2, 3, Q("20 mm")))
sketch8.addConstraint(Sketcher.Constraint("DistanceX", 0, 3, 3, 1, Q("1.979899 mm")))
sketch8.addConstraint(Sketcher.Constraint("DistanceY", 3, 1, 0, 3, Q("1.979899 mm")))
sketch8.addConstraint(Sketcher.Constraint("DistanceX", -1, 1, 2, 1, Q("20.414459 mm")))
sketch8.addConstraint(Sketcher.Constraint("DistanceX", -1, 1, 4, 1, Q("22.767779 mm")))
sketch8.addConstraint(Sketcher.Constraint("DistanceX", 22, 1, 24, 1, Q("0.671751 mm")))
pocket6 = body.newObject("PartDesign::Pocket", "Pocket005")
pocket6.Profile = sketch8
pocket6.Length = 5

doc.recompute()
